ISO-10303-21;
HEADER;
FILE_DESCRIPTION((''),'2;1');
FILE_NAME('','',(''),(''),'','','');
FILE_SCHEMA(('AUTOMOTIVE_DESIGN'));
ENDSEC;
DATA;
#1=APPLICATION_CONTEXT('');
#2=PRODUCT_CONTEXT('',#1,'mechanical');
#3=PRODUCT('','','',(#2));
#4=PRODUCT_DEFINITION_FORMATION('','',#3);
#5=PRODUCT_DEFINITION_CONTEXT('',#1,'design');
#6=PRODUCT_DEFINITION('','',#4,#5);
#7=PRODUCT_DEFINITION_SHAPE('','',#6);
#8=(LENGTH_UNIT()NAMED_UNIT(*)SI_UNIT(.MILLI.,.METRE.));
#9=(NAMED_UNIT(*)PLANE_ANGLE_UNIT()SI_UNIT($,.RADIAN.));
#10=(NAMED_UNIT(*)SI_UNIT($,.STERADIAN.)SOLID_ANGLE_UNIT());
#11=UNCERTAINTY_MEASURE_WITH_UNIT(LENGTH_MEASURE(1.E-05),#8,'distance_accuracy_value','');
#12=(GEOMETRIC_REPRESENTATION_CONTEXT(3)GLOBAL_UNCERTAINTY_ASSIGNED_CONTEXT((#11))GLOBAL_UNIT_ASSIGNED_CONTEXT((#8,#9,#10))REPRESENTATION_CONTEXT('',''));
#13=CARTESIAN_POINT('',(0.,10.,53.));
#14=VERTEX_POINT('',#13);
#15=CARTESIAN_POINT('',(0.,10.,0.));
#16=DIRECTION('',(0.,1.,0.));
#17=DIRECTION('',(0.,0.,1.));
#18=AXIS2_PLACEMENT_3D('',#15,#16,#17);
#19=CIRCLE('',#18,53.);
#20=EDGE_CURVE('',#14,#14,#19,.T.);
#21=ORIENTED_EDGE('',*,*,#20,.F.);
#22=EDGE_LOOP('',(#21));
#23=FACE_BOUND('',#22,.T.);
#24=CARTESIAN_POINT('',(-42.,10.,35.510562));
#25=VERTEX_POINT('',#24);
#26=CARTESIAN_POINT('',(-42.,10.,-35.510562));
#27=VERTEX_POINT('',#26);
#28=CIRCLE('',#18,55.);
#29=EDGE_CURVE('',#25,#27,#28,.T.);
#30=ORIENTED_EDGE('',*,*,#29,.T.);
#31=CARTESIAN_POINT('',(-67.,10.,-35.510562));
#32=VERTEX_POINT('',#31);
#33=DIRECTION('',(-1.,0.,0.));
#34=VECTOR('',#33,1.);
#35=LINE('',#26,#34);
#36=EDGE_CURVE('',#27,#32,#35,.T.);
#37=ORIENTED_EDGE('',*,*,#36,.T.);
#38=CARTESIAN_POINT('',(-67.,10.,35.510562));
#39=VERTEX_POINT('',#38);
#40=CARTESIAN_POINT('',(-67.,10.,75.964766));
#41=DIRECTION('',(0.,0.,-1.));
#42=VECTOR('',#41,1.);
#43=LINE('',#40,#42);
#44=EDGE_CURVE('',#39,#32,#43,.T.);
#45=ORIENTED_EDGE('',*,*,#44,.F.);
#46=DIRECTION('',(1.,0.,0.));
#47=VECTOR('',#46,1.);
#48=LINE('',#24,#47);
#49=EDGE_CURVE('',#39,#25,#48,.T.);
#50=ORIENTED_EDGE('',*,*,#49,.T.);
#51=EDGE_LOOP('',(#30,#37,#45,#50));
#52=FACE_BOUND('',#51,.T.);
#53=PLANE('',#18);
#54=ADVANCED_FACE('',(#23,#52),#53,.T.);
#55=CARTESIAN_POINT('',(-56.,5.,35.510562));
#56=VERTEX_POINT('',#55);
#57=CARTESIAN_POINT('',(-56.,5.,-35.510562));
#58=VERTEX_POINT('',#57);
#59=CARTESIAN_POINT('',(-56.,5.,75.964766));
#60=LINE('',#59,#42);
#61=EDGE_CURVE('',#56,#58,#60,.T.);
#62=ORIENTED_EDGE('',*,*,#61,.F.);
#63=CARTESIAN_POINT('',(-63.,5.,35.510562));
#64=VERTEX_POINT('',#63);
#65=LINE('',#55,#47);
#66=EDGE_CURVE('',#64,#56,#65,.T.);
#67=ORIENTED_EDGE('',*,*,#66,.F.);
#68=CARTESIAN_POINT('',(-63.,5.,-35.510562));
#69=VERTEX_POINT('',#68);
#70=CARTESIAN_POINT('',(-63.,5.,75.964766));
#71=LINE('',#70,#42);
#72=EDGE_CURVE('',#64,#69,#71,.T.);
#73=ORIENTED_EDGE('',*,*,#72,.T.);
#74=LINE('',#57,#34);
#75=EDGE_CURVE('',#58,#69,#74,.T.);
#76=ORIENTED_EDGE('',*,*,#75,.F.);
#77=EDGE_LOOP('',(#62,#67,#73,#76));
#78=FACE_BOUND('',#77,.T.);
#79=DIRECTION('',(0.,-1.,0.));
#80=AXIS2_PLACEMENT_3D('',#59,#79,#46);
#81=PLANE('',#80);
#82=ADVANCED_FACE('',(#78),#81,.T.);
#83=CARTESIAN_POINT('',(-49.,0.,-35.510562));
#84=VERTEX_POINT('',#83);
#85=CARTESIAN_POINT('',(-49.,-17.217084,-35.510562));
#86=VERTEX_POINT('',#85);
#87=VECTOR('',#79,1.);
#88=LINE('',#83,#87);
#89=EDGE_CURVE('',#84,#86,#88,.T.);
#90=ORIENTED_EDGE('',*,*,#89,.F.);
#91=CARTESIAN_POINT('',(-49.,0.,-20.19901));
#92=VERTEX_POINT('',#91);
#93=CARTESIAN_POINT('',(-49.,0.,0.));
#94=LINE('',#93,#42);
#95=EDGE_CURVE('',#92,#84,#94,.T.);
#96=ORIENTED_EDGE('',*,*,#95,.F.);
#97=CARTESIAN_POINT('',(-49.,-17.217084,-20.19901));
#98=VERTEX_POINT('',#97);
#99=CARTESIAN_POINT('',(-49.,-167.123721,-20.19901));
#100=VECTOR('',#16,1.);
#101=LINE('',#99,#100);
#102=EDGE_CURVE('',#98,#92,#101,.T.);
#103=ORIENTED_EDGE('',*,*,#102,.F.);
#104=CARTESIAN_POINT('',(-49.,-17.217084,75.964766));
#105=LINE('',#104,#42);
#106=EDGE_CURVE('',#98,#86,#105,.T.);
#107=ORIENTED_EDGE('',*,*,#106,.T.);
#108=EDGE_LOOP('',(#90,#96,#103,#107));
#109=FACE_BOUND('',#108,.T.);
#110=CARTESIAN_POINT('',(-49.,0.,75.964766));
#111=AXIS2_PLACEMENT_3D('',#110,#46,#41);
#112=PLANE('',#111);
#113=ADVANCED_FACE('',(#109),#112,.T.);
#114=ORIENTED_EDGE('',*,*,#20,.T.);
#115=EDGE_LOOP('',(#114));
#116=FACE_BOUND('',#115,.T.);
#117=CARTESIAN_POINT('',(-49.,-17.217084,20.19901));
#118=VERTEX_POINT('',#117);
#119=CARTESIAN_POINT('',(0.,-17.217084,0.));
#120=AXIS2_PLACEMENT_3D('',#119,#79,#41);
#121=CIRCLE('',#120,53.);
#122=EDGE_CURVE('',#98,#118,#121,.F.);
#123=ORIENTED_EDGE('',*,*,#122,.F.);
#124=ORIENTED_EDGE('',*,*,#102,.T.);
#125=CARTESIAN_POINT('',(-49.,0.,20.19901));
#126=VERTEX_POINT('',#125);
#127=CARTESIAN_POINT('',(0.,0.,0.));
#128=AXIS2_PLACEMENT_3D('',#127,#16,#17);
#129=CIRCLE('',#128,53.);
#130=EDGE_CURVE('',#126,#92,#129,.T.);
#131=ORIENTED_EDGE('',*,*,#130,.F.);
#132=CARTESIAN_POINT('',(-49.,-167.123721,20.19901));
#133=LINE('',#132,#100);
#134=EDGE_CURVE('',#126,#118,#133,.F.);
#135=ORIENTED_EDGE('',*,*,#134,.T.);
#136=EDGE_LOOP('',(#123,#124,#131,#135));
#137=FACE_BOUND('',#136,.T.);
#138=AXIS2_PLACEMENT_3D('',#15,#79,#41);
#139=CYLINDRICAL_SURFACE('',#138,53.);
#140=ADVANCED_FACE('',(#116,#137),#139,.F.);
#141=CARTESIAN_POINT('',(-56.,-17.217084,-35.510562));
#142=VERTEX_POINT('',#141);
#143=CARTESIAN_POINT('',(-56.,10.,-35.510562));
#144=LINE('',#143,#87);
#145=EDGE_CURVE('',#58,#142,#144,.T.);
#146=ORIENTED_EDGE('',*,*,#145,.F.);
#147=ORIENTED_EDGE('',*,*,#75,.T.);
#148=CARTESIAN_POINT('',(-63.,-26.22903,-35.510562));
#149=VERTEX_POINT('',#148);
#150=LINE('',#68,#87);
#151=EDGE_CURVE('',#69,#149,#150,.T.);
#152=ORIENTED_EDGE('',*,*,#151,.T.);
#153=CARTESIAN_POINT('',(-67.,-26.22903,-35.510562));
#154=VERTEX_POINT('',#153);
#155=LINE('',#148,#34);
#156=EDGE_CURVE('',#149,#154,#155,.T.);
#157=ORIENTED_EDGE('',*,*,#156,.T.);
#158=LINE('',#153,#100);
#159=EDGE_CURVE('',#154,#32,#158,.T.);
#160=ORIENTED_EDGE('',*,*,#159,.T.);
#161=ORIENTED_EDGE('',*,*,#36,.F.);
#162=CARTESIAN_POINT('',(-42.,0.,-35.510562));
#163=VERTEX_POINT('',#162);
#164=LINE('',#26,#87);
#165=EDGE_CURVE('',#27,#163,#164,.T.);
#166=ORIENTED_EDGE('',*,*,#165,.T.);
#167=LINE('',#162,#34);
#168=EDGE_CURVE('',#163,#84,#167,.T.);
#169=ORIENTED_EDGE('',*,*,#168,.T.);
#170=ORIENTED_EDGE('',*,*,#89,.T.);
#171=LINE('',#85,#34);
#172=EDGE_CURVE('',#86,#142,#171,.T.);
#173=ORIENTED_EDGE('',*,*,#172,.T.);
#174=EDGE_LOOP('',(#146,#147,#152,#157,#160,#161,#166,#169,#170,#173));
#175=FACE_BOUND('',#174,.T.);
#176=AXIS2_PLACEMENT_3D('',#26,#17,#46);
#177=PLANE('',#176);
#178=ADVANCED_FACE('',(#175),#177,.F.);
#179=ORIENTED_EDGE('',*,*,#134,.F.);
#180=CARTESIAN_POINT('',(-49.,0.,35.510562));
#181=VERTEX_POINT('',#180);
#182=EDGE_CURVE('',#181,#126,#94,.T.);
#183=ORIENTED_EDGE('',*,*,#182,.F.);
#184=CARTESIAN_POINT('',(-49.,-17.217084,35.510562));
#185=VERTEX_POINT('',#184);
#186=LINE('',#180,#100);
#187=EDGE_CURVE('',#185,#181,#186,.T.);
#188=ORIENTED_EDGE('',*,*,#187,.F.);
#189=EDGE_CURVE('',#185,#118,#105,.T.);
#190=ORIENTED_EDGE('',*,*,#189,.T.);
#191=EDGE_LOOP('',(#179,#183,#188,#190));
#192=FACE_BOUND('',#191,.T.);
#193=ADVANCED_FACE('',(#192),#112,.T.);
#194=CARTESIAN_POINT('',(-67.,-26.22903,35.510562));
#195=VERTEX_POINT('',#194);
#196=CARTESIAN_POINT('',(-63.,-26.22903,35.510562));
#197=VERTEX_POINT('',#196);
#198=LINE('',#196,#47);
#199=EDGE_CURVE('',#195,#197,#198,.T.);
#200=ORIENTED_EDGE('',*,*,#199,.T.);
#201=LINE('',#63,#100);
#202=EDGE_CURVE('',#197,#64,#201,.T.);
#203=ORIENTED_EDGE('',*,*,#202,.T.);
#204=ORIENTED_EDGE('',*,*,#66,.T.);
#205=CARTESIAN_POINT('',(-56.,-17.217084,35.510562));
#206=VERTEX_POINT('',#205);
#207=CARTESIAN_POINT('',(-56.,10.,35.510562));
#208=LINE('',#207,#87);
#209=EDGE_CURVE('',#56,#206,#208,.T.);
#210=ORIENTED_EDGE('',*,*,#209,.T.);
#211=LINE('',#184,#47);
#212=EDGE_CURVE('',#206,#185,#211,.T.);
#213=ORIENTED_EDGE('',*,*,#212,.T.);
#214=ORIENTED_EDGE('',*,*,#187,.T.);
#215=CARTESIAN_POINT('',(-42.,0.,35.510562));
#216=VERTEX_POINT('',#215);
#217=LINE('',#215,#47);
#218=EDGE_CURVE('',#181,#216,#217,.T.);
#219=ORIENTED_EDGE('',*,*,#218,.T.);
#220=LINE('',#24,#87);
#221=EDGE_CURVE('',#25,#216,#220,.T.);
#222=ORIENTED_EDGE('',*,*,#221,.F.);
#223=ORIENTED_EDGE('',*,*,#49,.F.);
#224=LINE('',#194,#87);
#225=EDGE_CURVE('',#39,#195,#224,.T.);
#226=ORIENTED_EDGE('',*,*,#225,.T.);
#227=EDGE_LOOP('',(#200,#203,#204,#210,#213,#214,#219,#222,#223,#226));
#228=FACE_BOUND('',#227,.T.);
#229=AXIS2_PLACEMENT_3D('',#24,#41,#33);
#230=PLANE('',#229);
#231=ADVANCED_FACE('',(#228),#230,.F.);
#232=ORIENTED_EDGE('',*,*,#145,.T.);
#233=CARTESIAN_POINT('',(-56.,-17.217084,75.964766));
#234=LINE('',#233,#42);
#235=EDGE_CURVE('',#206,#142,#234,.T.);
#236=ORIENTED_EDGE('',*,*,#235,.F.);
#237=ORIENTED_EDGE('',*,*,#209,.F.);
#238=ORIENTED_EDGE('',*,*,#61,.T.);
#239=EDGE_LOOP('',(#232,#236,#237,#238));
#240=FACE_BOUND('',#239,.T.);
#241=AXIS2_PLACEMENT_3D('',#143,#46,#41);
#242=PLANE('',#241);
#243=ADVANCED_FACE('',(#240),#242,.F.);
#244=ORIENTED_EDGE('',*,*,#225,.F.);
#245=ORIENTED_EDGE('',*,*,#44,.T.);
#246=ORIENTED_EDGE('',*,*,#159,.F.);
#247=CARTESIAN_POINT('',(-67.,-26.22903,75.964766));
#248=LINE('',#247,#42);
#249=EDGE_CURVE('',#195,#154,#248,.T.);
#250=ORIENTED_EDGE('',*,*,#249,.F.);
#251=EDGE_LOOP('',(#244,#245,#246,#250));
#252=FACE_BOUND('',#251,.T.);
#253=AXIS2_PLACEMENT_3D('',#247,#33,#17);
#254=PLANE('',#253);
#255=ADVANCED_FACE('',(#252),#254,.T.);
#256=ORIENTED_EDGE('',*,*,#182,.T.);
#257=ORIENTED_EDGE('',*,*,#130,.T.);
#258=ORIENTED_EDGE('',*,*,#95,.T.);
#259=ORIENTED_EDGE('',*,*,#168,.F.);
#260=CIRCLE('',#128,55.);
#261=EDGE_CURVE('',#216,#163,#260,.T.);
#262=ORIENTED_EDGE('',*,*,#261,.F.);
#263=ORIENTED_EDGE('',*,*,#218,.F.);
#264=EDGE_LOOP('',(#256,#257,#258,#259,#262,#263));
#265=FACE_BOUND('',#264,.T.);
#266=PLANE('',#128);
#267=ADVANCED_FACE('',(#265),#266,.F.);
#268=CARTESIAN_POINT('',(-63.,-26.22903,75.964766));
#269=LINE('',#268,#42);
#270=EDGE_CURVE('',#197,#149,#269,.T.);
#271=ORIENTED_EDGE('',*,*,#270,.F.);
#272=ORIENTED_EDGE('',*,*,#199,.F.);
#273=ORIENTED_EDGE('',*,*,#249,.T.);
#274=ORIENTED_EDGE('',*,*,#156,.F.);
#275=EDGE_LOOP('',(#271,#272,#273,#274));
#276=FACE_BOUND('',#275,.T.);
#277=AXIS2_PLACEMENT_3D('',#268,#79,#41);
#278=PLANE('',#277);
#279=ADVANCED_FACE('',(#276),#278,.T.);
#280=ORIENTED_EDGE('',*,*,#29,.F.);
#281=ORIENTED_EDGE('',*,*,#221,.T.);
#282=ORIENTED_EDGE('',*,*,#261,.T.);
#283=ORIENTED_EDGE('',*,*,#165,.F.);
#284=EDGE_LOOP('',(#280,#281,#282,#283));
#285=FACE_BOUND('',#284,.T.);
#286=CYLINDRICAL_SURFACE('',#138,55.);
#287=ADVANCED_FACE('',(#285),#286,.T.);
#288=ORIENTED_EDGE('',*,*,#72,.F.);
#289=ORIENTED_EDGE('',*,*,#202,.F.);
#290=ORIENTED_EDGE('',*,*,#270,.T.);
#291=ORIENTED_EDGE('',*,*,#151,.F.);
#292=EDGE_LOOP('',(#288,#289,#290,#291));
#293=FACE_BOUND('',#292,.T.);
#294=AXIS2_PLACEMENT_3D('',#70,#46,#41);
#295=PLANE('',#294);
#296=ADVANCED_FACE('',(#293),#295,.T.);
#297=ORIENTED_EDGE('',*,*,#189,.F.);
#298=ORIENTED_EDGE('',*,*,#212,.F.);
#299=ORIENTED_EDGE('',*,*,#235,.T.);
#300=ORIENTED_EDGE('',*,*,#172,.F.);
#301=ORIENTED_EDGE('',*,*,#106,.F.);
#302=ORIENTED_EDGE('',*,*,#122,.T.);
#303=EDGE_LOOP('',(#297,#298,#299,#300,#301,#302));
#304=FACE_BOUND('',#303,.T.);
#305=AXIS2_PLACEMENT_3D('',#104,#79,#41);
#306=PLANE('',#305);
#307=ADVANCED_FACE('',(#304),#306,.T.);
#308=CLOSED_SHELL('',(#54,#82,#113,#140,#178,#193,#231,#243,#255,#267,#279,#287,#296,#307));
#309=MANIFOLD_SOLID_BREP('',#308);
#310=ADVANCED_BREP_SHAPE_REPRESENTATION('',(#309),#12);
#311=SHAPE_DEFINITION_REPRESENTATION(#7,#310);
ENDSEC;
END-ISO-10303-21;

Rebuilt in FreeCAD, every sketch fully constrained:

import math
import FreeCAD as App
import Part
import Sketcher
from FreeCAD import Vector


def add_polygon(sketch, points):
    """Adds a closed chain of lines whose ends are joined by coincident constraints."""
    first, n = sketch.GeometryCount, len(points)
    for a, b in zip(points, points[1:] + points[:1]):
        sketch.addGeometry(Part.LineSegment(App.Vector(*a, 0), App.Vector(*b, 0)), False)
    for i in range(n):
        sketch.addConstraint(Sketcher.Constraint("Coincident", first + i, 2, first + (i + 1) % n, 1))

doc = App.newDocument("Part")
body = doc.addObject("PartDesign::Body", "Body")

sketch1 = doc.addObject("Sketcher::SketchObject", "Sketch")
body.addObject(sketch1)
sketch1.AttachmentSupport = (doc.XZ_Plane, [""])
sketch1.MapMode = "FlatFace"
sketch1.addGeometry(Part.LineSegment(Vector(-42, -36, 0), Vector(-56, -36, 0)), False)
sketch1.addGeometry(Part.LineSegment(Vector(-56, -36, 0), Vector(-56, 36, 0)), False)
sketch1.addGeometry(Part.LineSegment(Vector(-56, 36, 0), Vector(-42, 36, 0)), False)
sketch1.addGeometry(Part.ArcOfCircle(Part.Circle(Vector(0, 0, 0), Vector(0, 0, 1), 55), math.radians(-140), math.radians(140)), False)
sketch1.addGeometry(Part.Circle(Vector(0, 0, 0), Vector(0, 0, 1), 53), False)
sketch1.addConstraint(Sketcher.Constraint("Coincident", 0, 2, 1, 1))
sketch1.addConstraint(Sketcher.Constraint("Coincident", 1, 2, 2, 1))
sketch1.addConstraint(Sketcher.Constraint("Coincident", 2, 2, 3, 2))
sketch1.addConstraint(Sketcher.Constraint("Coincident", 3, 1, 0, 1))
sketch1.addConstraint(Sketcher.Constraint("Horizontal", 0))
sketch1.addConstraint(Sketcher.Constraint("Vertical", 1))
sketch1.addConstraint(Sketcher.Constraint("Horizontal", 2))
sketch1.addConstraint(Sketcher.Constraint("Coincident", 3, 3, -1, 1))
sketch1.addConstraint(Sketcher.Constraint("Coincident", 4, 3, -1, 1))
sketch1.addConstraint(Sketcher.Constraint("Vertical", 2, 2, 3, 1))
sketch1.addConstraint(Sketcher.Constraint("Diameter", 4, 106.0))
sketch1.addConstraint(Sketcher.Constraint("Radius", 3, 55.0))
sketch1.addConstraint(Sketcher.Constraint("DistanceX", 0, 2, 0, 1, 14.0))
sketch1.addConstraint(Sketcher.Constraint("DistanceX", 0, 2, -1, 1, 56.0))
pad1 = doc.addObject("PartDesign::Pad", "Pad")
body.addObject(pad1)
pad1.Profile = sketch1
pad1.Length = 10
pad1.Reversed = True

sketch2 = doc.addObject("Sketcher::SketchObject", "Sketch001")
body.addObject(sketch2)
sketch2.AttachmentSupport = (doc.XY_Plane, [""])
sketch2.MapMode = "FlatFace"
sketch2.AttachmentOffset = App.Placement(Vector(0, 0, -35.510562), App.Rotation())
add_polygon(sketch2, [(-49, -17.2), (-56, -17.2), (-56, 5), (-63, 5), (-63, -26.2), (-67, -26.2), (-67, 10), (-49, 10)])
sketch2.addConstraint(Sketcher.Constraint("Horizontal", 0))
sketch2.addConstraint(Sketcher.Constraint("Vertical", 1))
sketch2.addConstraint(Sketcher.Constraint("Horizontal", 2))
sketch2.addConstraint(Sketcher.Constraint("Vertical", 3))
sketch2.addConstraint(Sketcher.Constraint("Horizontal", 4))
sketch2.addConstraint(Sketcher.Constraint("Vertical", 5))
sketch2.addConstraint(Sketcher.Constraint("Horizontal", 6))
sketch2.addConstraint(Sketcher.Constraint("Vertical", 7))
sketch2.addConstraint(Sketcher.Constraint("Equal", 0, 2))
sketch2.addConstraint(Sketcher.Constraint("DistanceX", 0, 2, 0, 1, 7.0))
sketch2.addConstraint(Sketcher.Constraint("DistanceX", 4, 2, 4, 1, 4.0))
sketch2.addConstraint(Sketcher.Constraint("DistanceX", 0, 2, -1, 1, 56.0))
sketch2.addConstraint(Sketcher.Constraint("DistanceY", -1, 1, 1, 2, 5.0))
sketch2.addConstraint(Sketcher.Constraint("DistanceY", -1, 1, 5, 2, 10.0))
sketch2.addConstraint(Sketcher.Constraint("DistanceY", 3, 2, 3, 1, 31.22903))
sketch2.addConstraint(Sketcher.Constraint("DistanceY", 1, 1, 1, 2, 22.217084))
pad2 = doc.addObject("PartDesign::Pad", "Pad001")
body.addObject(pad2)
pad2.Profile = sketch2
pad2.Length = 71.021124

sketch3 = doc.addObject("Sketcher::SketchObject", "Sketch002")
body.addObject(sketch3)
sketch3.AttachmentSupport = (doc.XZ_Plane, [""])
sketch3.MapMode = "FlatFace"
sketch3.AttachmentOffset = App.Placement(Vector(0, 0, -10), App.Rotation())
sketch3.addGeometry(Part.Circle(Vector(0, 0, 0), Vector(0, 0, 1), 53), False)
sketch3.addConstraint(Sketcher.Constraint("Coincident", 0, 3, -1, 1))
sketch3.addConstraint(Sketcher.Constraint("Diameter", 0, 106.0))
pocket1 = doc.addObject("PartDesign::Pocket", "Pocket")
body.addObject(pocket1)
pocket1.Profile = sketch3
pocket1.Length = 27.217084
pocket1.Reversed = True

doc.recompute()
